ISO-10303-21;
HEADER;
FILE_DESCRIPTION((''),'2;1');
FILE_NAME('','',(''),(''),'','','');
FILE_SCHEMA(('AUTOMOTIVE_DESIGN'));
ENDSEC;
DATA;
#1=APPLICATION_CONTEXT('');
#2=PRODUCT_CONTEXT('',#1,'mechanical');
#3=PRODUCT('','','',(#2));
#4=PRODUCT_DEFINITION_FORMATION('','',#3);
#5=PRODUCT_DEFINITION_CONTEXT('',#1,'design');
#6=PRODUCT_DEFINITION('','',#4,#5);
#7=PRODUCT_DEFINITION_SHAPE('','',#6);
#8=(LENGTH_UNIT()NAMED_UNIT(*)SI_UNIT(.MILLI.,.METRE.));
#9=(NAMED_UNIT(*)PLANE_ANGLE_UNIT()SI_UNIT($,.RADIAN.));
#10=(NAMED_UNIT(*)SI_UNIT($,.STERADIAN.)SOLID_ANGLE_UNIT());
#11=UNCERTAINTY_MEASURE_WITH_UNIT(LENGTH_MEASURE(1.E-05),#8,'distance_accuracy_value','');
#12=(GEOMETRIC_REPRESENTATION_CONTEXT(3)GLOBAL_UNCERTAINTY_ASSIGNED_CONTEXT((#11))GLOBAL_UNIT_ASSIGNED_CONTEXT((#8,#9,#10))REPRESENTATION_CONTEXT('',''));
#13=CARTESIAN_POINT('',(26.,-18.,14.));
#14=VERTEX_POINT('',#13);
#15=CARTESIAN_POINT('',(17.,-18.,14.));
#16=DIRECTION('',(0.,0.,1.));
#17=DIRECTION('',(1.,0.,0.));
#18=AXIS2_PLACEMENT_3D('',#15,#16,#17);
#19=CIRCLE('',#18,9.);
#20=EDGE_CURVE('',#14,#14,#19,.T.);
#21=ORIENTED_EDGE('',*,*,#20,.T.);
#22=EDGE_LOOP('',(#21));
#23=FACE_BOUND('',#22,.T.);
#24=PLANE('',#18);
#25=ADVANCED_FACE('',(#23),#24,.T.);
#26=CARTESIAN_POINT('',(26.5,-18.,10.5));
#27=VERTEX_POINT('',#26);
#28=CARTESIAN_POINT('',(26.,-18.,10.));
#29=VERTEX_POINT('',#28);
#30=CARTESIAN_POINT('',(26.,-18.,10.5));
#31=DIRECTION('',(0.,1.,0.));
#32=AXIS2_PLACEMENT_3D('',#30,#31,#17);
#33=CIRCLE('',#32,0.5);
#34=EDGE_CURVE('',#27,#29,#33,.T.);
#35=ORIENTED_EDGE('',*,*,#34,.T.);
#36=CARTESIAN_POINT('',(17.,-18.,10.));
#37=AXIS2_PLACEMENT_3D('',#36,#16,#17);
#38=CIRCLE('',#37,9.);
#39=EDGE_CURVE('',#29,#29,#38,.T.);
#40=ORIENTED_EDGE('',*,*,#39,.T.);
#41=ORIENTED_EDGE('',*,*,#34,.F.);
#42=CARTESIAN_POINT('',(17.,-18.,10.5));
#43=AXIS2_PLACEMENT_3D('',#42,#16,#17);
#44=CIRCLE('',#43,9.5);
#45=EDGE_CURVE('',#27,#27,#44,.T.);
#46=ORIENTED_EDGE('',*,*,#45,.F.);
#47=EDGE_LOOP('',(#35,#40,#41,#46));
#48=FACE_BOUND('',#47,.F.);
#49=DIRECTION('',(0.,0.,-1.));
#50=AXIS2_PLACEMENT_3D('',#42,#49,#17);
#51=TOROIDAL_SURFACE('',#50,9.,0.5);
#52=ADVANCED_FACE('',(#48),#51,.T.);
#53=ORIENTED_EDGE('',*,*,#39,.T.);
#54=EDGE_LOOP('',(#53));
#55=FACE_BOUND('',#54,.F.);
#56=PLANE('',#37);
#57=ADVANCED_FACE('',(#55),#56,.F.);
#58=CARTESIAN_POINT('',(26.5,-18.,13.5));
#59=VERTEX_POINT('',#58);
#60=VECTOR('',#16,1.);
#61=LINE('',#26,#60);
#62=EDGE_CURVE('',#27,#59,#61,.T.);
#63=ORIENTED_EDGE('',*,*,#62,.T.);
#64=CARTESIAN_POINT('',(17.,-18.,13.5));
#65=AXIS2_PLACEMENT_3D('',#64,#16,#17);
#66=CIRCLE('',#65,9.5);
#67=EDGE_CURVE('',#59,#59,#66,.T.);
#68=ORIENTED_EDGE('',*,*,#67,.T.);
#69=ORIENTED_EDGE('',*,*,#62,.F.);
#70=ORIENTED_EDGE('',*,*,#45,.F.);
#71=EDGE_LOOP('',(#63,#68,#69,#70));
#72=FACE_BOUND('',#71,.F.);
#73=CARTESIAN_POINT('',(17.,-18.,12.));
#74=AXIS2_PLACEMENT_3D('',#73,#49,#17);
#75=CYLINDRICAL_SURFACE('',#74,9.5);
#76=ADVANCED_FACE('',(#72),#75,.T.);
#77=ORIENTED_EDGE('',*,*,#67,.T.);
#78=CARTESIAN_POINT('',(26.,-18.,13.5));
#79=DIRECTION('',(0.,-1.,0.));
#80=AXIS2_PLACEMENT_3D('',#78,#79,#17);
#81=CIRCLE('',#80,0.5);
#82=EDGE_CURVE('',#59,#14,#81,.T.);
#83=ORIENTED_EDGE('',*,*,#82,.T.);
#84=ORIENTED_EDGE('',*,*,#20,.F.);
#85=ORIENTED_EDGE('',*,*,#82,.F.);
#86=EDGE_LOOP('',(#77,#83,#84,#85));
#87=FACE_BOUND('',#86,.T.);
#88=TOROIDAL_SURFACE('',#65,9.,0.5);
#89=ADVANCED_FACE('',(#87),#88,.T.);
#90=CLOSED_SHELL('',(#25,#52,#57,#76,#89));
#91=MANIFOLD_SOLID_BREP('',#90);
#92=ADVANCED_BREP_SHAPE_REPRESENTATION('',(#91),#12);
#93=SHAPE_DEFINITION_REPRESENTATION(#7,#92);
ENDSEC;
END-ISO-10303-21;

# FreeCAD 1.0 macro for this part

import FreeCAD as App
import Part
import Sketcher

V = App.Vector
Q = App.Units.Quantity


def edges_at(feature, points):
    """Names of the edges that pass closest to the given points."""
    edges = feature.Shape.Edges
    near = lambda p: min(range(len(edges)), key=lambda i: edges[i].distToShape(Part.Vertex(*p))[0])
    return sorted({f"Edge{near(p) + 1}" for p in points})

doc = App.newDocument("Part")
body = doc.addObject("PartDesign::Body", "Body")

# Sketch on XY plane
sketch1 = body.newObject("Sketcher::SketchObject", "Sketch")
sketch1.AttachmentSupport = (doc.getObject("XY_Plane"), [""])
sketch1.MapMode = "FlatFace"
sketch1.AttachmentOffset = App.Placement(V(0, 0, 12), App.Rotation())
sketch1.addGeometry(Part.Circle(V(0, 0, 0), V(0, 0, 1), 10), False)
sketch1.addConstraint([
    Sketcher.Constraint("Coincident", 0, 3, -1, 1),
    Sketcher.Constraint("Diameter", 0, Q("19 mm")),
])
pad1 = body.newObject("PartDesign::Pad", "Pad")
pad1.Profile = sketch1
pad1.Length = 2
doc.recompute()

fillet = body.newObject("PartDesign::Fillet", "Fillet")
fillet.Base = (pad1, edges_at(pad1, [(-9.5, 0, 14)]))
fillet.Radius = 0.5
body2 = doc.addObject("PartDesign::Body", "Body001")

# Sketch on XY plane
sketch2 = body2.newObject("Sketcher::SketchObject", "Sketch001")
sketch2.AttachmentSupport = (doc.getObject("XY_Plane001"), [""])
sketch2.MapMode = "FlatFace"
sketch2.AttachmentOffset = App.Placement(V(0, 0, 11), App.Rotation())
sketch2.addGeometry(Part.Circle(V(0, 0, 0), V(0, 0, 1), 10), False)
sketch2.addConstraint([
    Sketcher.Constraint("Coincident", 0, 3, -1, 1),
    Sketcher.Constraint("Diameter", 0, Q("19 mm")),
])
pad2 = body2.newObject("PartDesign::Pad", "Pad001")
pad2.Profile = sketch2
pad2.Length = 2
doc.recompute()

fillet2 = body2.newObject("PartDesign::Fillet", "Fillet001")
fillet2.Base = (pad2, edges_at(pad2, [(-9.5, 0, 11)]))
fillet2.Radius = 0.5
body3 = doc.addObject("PartDesign::Body", "Body002")
doc.recompute()

body2.Placement = App.Placement(V(0, 0, -1), App.Rotation(V(0, 0, 1), 0))
boolean = body3.newObject("PartDesign::Boolean", "Boolean")
boolean.Type = "Fuse"
boolean.addObjects([body2])
doc.recompute()

boolean2 = body3.newObject("PartDesign::Boolean", "Boolean001")
boolean2.Type = "Fuse"
boolean2.addObjects([body])
body4 = doc.addObject("PartDesign::Body", "Body003")
doc.recompute()

body3.Placement = App.Placement(V(17, -18, 0), App.Rotation(V(0, 0, 1), 0))
boolean3 = body4.newObject("PartDesign::Boolean", "Boolean002")
boolean3.Type = "Fuse"
boolean3.addObjects([body3])

doc.recompute()
